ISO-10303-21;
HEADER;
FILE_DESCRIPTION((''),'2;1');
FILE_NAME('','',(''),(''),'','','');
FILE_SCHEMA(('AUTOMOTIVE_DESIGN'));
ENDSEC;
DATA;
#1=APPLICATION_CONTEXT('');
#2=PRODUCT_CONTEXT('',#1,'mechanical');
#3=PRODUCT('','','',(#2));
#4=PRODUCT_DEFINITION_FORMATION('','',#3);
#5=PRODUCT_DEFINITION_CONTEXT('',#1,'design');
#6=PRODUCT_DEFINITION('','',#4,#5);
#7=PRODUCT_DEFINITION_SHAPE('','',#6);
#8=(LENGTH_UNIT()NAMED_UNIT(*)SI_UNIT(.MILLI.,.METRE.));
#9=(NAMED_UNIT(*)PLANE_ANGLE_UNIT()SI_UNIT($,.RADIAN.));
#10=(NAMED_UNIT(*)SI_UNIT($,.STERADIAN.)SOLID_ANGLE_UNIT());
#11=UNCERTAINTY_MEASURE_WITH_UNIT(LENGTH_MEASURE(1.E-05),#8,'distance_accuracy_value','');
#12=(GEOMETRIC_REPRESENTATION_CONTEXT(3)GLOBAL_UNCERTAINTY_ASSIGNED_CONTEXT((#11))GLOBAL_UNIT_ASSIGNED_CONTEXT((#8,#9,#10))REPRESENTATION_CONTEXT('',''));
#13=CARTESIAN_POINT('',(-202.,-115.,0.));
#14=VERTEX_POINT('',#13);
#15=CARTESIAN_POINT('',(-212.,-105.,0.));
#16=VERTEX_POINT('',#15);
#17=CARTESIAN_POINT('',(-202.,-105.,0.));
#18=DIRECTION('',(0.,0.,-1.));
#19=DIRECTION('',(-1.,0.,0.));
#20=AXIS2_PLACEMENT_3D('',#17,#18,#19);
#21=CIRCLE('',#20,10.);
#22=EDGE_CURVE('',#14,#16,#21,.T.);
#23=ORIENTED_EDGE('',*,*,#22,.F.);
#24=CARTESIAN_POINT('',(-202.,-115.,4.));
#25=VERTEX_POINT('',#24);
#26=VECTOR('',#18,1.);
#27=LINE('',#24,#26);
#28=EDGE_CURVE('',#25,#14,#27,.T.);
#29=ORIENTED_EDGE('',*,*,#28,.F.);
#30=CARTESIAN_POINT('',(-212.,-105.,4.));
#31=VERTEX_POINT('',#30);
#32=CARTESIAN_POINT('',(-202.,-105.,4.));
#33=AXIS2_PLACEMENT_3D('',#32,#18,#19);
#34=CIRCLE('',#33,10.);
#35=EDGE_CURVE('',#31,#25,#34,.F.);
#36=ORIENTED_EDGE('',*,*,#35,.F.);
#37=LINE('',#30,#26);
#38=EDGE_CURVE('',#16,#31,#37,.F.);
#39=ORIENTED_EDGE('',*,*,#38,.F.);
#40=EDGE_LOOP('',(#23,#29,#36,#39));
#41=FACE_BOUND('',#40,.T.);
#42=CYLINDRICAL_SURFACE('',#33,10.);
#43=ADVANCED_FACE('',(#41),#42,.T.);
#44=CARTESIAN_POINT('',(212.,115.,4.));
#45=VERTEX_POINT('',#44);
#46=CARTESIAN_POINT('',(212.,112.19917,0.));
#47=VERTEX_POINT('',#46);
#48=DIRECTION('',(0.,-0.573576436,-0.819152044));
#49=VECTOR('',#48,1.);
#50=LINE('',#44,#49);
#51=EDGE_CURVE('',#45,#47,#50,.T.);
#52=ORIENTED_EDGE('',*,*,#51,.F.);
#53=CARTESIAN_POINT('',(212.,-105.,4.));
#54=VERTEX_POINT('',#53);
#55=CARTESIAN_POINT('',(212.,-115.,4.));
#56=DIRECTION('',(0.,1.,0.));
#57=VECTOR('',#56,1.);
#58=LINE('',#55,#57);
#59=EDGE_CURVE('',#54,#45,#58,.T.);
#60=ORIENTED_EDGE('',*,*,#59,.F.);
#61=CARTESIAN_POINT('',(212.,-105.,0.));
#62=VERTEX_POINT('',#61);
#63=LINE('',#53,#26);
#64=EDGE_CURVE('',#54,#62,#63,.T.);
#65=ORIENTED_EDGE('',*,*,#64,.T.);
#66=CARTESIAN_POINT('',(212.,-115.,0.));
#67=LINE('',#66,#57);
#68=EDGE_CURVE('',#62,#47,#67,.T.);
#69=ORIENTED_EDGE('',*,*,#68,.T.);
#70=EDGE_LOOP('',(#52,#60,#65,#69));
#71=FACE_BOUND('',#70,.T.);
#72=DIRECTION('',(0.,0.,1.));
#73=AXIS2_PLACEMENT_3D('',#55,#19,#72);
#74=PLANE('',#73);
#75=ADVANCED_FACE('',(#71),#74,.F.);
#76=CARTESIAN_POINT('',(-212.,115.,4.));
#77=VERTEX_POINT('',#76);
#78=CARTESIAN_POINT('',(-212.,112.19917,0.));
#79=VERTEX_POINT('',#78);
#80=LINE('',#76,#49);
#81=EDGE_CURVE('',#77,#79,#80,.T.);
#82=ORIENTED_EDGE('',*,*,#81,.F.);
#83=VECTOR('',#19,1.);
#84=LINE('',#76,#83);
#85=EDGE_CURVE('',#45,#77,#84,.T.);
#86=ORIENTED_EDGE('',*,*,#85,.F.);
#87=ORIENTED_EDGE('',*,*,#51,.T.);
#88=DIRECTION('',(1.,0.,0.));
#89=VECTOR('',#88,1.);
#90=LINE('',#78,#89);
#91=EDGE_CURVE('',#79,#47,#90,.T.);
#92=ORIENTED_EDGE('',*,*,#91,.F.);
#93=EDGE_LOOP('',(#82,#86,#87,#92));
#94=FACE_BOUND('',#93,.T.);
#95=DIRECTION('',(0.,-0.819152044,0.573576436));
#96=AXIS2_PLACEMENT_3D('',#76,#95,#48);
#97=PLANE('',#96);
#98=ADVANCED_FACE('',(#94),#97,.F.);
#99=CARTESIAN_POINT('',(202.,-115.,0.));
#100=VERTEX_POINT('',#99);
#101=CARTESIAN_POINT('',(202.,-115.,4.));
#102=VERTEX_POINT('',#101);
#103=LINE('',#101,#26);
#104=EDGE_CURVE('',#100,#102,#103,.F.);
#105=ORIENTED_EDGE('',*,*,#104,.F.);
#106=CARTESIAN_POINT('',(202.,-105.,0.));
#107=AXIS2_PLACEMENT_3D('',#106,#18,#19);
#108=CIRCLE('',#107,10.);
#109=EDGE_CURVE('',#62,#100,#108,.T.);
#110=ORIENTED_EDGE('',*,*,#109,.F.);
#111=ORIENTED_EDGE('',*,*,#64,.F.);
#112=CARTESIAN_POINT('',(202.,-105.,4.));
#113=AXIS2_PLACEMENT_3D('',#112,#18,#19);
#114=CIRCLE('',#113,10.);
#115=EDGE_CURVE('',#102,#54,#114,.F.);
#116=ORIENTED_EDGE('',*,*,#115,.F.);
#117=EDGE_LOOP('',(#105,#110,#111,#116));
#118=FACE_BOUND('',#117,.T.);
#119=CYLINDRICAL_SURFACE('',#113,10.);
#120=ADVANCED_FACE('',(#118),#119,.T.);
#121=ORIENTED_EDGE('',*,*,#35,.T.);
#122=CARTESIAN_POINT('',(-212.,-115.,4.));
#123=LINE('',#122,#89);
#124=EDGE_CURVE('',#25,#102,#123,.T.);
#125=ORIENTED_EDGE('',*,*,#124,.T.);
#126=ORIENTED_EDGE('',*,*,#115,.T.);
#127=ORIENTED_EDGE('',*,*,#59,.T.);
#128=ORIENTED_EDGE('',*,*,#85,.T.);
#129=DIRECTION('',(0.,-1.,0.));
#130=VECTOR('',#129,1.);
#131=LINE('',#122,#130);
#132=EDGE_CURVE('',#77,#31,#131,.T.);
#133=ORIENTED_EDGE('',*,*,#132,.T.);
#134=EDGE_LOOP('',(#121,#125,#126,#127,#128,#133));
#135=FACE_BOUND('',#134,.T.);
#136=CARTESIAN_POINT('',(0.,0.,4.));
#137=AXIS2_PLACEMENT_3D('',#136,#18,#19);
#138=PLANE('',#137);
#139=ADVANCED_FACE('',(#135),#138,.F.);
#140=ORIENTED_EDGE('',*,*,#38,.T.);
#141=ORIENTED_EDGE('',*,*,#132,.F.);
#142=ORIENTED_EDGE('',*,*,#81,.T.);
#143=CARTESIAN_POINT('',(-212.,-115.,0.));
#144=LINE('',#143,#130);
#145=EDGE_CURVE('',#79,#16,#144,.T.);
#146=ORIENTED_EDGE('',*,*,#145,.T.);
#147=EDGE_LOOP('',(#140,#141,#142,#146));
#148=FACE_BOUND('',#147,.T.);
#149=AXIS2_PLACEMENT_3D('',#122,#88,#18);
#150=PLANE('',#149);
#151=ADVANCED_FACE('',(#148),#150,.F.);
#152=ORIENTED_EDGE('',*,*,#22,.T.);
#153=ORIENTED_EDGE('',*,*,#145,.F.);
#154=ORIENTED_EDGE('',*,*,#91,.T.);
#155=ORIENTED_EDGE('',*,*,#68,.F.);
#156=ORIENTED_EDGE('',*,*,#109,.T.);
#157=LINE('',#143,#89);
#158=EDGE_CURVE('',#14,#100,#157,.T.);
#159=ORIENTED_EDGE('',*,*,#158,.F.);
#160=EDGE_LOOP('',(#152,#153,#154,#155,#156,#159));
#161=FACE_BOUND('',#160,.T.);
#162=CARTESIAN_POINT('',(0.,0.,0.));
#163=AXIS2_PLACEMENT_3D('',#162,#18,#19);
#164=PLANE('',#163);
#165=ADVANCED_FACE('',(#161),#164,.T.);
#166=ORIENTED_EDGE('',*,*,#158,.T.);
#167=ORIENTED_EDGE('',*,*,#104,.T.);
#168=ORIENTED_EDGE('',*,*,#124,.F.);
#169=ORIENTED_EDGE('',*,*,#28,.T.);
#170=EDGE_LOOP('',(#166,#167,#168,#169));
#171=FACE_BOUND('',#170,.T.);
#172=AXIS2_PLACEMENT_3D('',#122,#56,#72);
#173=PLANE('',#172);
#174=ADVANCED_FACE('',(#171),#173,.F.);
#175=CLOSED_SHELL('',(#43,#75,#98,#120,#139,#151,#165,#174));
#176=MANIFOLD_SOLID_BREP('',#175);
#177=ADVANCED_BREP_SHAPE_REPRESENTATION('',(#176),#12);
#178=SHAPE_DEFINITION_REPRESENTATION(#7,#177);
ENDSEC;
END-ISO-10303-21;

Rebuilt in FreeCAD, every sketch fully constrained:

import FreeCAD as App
import Part
import Sketcher

V = App.Vector
Q = App.Units.Quantity


def edges_at(feature, points):
    """Names of the edges that pass closest to the given points."""
    edges = feature.Shape.Edges
    near = lambda p: min(range(len(edges)), key=lambda i: edges[i].distToShape(Part.Vertex(*p))[0])
    return sorted({f"Edge{near(p) + 1}" for p in points})

doc = App.newDocument("Part")
body = doc.addObject("PartDesign::Body", "Body")

# Sketch on XY plane
sketch1 = body.newObject("Sketcher::SketchObject", "Sketch")
sketch1.AttachmentSupport = (doc.getObject("XY_Plane"), [""])
sketch1.MapMode = "FlatFace"
sketch1.addGeometry([
    Part.LineSegment(V(-212, 115, 0), V(-212, -115, 0)),
    Part.LineSegment(V(-212, -115, 0), V(212, -115, 0)),
    Part.LineSegment(V(212, -115, 0), V(212, 115, 0)),
    Part.LineSegment(V(212, 115, 0), V(-212, 115, 0)),
], False)
sketch1.addConstraint([
    Sketcher.Constraint("Coincident", 0, 2, 1, 1),
    Sketcher.Constraint("Coincident", 1, 2, 2, 1),
    Sketcher.Constraint("Coincident", 2, 2, 3, 1),
    Sketcher.Constraint("Coincident", 3, 2, 0, 1),
    Sketcher.Constraint("Vertical", 0),
    Sketcher.Constraint("Horizontal", 1),
    Sketcher.Constraint("Vertical", 2),
    Sketcher.Constraint("Horizontal", 3),
    Sketcher.Constraint("Symmetric", 0, 2, 2, 2, -1, 1),
    Sketcher.Constraint("DistanceX", 1, 1, 1, 2, Q("424 mm")),
    Sketcher.Constraint("DistanceY", 0, 2, 0, 1, Q("230 mm")),
])
pad1 = body.newObject("PartDesign::Pad", "Pad")
pad1.Profile = sketch1
pad1.Length = 4
doc.recompute()

fillet = body.newObject("PartDesign::Fillet", "Fillet")
fillet.Base = (pad1, edges_at(pad1, [(212, -115, 2), (-212, -115, 2)]))
fillet.Radius = 10

# Sketch on YZ plane
sketch2 = body.newObject("Sketcher::SketchObject", "Sketch001")
sketch2.AttachmentSupport = (doc.getObject("YZ_Plane"), [""])
sketch2.MapMode = "FlatFace"
sketch2.AttachmentOffset = App.Placement(V(0, 0, 212), App.Rotation())
sketch2.addGeometry([
    Part.LineSegment(V(115, 4, 0), V(112.2, 0, 0)),
    Part.LineSegment(V(112.2, 0, 0), V(115, 0, 0)),
    Part.LineSegment(V(115, 0, 0), V(115, 4, 0)),
], False)
sketch2.addConstraint([
    Sketcher.Constraint("Coincident", 0, 2, 1, 1),
    Sketcher.Constraint("Coincident", 1, 2, 2, 1),
    Sketcher.Constraint("Coincident", 2, 2, 0, 1),
    Sketcher.Constraint("Horizontal", 1),
    Sketcher.Constraint("Vertical", 2),
    Sketcher.Constraint("PointOnObject", 0, 2, -1),
    Sketcher.Constraint("DistanceY", 2, 1, 2, 2, Q("4 mm")),
    Sketcher.Constraint("Angle", 0, Q("-125 deg")),
    Sketcher.Constraint("DistanceX", -1, 1, 1, 2, Q("115 mm")),
])
pocket1 = body.newObject("PartDesign::Pocket", "Pocket")
pocket1.Profile = sketch2
pocket1.Type = "ThroughAll"

doc.recompute()
